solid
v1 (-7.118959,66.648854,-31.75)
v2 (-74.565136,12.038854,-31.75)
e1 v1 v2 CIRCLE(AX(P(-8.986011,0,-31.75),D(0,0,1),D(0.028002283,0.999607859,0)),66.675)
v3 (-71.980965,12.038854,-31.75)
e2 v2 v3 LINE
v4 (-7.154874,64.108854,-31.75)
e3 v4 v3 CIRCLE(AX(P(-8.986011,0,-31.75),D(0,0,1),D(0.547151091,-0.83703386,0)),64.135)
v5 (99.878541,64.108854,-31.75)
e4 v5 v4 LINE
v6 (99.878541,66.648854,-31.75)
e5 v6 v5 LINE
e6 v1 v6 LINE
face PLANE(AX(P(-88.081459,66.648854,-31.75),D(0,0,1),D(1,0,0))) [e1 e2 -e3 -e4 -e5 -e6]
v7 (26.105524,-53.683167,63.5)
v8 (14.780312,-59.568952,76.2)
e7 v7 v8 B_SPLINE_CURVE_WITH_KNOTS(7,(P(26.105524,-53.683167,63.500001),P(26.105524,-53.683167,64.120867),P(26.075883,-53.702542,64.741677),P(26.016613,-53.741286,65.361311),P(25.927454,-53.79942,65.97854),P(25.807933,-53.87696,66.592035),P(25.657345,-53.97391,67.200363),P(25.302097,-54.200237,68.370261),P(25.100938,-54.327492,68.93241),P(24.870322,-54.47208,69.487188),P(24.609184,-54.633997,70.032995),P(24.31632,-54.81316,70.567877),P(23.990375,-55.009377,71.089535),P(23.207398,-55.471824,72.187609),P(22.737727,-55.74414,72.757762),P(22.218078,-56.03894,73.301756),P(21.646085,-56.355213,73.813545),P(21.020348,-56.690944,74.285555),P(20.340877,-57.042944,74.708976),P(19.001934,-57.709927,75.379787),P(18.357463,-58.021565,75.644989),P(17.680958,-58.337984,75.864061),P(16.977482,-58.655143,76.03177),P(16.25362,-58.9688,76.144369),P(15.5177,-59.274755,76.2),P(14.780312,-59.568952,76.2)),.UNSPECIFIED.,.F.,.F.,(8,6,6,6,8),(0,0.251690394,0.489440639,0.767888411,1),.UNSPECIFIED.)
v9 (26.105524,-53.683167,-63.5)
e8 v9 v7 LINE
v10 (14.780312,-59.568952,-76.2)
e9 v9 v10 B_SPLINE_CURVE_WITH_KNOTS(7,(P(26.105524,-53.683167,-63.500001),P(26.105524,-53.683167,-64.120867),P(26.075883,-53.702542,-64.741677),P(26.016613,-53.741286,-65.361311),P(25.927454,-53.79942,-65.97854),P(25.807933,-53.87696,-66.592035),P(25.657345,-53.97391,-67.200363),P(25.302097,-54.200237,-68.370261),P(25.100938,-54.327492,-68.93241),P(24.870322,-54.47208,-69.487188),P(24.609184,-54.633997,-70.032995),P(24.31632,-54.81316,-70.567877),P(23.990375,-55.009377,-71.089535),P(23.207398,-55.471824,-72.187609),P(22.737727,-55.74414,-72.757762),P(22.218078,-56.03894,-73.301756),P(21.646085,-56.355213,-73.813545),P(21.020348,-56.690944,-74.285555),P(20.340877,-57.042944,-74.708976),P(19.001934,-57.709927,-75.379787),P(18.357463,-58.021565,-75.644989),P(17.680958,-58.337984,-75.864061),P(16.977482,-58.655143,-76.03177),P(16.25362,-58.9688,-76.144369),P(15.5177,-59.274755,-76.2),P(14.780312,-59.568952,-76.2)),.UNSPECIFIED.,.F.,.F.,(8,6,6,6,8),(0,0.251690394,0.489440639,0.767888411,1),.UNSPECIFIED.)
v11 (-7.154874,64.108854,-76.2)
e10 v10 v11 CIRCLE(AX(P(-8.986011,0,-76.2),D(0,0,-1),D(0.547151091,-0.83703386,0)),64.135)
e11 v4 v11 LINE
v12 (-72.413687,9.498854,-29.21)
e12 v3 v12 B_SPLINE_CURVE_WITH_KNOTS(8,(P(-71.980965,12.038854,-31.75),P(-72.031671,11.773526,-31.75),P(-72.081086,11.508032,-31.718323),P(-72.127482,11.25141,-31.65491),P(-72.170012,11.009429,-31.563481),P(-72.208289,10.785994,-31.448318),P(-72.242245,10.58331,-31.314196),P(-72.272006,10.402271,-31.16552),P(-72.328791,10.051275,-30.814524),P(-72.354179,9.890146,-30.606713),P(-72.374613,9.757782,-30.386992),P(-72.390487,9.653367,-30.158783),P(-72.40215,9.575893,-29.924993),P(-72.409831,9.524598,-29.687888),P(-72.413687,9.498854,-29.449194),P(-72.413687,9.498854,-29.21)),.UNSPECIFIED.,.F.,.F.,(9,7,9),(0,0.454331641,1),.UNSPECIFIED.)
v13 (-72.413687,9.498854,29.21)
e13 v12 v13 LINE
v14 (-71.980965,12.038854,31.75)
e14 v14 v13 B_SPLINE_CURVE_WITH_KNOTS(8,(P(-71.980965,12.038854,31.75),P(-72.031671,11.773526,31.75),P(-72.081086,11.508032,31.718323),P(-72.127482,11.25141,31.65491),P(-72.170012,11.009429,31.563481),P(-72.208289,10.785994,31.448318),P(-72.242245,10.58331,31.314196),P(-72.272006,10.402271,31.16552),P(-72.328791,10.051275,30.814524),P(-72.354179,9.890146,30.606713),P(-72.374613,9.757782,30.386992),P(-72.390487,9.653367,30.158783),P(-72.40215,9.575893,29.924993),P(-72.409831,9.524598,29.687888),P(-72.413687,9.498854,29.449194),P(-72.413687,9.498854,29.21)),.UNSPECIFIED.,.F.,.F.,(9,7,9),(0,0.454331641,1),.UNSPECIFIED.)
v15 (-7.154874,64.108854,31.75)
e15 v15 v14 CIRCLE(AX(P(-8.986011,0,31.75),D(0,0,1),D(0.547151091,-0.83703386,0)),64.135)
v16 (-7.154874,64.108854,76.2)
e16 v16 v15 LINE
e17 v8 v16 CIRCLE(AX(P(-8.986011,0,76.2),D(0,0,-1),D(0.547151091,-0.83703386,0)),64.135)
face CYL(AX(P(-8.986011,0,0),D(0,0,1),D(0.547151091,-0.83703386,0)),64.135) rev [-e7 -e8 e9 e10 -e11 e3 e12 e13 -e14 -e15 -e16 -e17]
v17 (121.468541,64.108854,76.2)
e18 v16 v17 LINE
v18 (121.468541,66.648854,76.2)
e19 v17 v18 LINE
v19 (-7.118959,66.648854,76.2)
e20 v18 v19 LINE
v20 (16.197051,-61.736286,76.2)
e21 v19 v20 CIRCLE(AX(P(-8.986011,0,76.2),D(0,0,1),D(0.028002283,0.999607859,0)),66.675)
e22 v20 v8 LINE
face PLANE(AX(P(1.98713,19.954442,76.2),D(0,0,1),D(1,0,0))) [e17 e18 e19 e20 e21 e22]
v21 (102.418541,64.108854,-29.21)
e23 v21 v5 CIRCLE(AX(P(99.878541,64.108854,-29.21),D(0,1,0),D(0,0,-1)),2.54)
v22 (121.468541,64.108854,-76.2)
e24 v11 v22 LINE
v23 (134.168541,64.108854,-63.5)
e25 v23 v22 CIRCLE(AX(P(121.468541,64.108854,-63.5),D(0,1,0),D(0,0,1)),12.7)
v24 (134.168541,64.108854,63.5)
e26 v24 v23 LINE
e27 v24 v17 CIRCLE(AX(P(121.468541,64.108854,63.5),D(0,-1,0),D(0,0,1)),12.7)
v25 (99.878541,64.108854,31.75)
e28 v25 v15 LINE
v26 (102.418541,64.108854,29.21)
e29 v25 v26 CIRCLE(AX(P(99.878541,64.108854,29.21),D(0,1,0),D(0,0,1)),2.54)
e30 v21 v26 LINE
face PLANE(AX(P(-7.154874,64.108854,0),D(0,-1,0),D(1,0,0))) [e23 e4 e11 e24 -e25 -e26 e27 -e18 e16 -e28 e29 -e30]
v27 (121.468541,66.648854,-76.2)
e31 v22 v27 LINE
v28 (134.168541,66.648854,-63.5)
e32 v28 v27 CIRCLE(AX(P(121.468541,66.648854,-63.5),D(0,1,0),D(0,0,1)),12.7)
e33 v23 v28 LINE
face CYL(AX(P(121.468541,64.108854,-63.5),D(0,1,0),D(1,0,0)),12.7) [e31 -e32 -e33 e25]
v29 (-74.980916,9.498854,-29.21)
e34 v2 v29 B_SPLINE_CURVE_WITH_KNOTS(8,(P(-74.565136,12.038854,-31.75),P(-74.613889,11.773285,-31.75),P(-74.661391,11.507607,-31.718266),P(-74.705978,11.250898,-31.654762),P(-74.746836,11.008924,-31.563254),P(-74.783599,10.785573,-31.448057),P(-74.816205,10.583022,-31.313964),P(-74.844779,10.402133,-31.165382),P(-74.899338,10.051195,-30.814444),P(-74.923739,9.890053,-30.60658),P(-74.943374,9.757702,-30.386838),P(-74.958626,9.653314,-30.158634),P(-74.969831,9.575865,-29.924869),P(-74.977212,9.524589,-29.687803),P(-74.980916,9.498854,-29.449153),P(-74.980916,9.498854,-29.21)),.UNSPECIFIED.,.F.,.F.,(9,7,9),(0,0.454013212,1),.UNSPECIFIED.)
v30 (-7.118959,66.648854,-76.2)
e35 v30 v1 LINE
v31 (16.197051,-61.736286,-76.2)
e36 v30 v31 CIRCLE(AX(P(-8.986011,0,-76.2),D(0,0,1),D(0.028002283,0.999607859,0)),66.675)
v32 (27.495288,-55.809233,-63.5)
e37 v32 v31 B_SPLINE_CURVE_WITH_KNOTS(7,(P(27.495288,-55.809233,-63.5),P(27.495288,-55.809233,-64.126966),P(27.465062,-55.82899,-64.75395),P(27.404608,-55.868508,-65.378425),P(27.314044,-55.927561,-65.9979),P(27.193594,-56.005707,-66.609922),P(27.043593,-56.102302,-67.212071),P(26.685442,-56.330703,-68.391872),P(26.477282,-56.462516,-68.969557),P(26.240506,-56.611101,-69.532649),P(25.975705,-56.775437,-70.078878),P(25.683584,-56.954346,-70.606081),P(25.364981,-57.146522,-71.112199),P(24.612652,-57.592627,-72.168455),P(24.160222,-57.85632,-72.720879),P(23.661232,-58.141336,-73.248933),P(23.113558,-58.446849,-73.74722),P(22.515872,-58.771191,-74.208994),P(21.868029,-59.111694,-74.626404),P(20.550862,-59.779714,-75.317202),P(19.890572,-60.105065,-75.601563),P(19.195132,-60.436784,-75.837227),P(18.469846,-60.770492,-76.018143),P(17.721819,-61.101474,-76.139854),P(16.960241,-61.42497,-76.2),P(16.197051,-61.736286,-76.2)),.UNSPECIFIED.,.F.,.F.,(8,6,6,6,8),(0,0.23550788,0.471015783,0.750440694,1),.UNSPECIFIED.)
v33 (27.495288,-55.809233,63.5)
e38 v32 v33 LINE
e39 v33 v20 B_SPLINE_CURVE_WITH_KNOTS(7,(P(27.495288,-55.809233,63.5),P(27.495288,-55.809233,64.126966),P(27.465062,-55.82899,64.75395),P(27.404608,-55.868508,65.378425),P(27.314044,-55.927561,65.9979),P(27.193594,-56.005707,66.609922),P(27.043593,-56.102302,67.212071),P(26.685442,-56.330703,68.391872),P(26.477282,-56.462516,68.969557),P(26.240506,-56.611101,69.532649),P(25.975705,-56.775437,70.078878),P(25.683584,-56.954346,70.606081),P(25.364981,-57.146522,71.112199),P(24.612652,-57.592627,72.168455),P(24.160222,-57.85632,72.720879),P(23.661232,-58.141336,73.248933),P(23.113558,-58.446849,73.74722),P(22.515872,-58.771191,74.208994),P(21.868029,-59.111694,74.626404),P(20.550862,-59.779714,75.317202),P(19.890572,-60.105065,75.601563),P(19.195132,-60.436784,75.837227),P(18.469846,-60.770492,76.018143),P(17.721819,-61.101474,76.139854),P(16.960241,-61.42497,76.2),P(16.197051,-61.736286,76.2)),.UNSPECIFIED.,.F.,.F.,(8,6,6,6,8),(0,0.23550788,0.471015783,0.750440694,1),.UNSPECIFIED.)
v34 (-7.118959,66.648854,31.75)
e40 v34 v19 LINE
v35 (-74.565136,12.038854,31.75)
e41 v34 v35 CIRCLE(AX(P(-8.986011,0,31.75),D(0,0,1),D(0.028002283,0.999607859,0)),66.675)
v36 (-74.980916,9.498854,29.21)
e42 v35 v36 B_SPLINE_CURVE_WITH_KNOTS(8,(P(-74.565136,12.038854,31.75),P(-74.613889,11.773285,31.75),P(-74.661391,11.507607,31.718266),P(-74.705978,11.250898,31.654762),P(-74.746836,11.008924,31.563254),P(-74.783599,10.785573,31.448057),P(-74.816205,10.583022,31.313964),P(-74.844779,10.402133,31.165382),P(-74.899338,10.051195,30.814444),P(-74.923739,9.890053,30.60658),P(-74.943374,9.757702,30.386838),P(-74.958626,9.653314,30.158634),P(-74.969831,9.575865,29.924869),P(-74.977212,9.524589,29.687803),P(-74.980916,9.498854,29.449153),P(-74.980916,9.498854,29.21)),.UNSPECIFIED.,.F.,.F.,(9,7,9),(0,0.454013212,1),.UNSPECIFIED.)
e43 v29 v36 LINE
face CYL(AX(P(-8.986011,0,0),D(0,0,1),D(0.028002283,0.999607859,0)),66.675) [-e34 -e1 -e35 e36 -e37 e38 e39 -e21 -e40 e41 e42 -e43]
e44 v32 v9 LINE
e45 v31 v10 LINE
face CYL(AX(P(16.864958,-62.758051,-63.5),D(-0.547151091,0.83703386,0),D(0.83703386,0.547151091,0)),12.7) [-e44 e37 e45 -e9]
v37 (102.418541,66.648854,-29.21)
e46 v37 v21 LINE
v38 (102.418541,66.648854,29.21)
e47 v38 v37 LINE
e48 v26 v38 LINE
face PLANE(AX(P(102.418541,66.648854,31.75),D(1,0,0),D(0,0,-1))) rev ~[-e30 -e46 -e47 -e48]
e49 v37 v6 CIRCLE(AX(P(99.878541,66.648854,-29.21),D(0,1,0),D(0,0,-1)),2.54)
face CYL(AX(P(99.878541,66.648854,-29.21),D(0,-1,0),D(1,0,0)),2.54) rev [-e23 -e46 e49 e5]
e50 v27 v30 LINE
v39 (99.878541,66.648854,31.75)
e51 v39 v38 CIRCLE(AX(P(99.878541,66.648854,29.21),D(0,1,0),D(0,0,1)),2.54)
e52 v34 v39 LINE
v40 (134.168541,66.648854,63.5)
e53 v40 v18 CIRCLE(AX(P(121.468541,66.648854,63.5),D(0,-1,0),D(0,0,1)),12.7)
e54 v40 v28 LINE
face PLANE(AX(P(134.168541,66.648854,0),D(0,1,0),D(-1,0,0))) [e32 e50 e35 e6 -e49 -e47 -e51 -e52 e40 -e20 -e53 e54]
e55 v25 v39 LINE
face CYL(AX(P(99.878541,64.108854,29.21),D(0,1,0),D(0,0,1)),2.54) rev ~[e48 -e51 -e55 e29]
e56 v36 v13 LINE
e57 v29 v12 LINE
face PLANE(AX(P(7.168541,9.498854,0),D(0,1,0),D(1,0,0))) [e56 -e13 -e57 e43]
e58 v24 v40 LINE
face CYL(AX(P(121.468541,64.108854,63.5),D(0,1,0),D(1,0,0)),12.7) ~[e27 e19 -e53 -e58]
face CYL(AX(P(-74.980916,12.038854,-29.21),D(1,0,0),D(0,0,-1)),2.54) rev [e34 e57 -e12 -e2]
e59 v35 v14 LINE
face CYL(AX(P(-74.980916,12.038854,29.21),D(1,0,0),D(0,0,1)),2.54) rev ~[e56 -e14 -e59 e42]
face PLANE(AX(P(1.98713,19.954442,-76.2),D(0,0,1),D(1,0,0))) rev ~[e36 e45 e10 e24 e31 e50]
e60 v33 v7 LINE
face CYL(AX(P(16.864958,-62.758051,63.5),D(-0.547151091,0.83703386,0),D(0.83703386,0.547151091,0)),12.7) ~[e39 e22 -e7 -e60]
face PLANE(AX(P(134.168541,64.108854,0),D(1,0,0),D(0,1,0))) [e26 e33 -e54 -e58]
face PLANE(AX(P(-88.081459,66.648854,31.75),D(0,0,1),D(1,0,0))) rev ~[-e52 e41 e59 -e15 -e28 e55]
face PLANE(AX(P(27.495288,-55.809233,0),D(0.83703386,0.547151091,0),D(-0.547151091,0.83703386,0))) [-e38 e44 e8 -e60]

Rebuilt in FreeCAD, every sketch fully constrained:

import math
import FreeCAD as App
import Part
import Sketcher
from FreeCAD import Vector
Q = App.Units.Quantity


def edges_at(feature, points):
    """Names of the edges that pass closest to the given points."""
    edges = feature.Shape.Edges
    near = lambda p: min(range(len(edges)), key=lambda i: edges[i].distToShape(Part.Vertex(*p))[0])
    return sorted({f"Edge{near(p) + 1}" for p in points})


def add_polygon(sketch, points):
    """Adds a closed chain of lines whose ends are joined by coincident constraints."""
    first, n = sketch.GeometryCount, len(points)
    for a, b in zip(points, points[1:] + points[:1]):
        sketch.addGeometry(Part.LineSegment(App.Vector(*a, 0), App.Vector(*b, 0)), False)
    for i in range(n):
        sketch.addConstraint(Sketcher.Constraint("Coincident", first + i, 2, first + (i + 1) % n, 1))

doc = App.newDocument("Part")
body = doc.addObject("PartDesign::Body", "Body")

sketch1 = body.newObject("Sketcher::SketchObject", "Sketch")
sketch1.AttachmentSupport = (doc.getObject("XY_Plane"), [""])
sketch1.MapMode = "FlatFace"
sketch1.addGeometry([
    Part.LineSegment(Vector(134.168541, 66.648854, 0), Vector(-7.118959, 66.648854, 0)),
    Part.ArcOfCircle(Part.Circle(Vector(-8.986011, 0, 0), Vector(0, 0, 1), 66.675), math.radians(88.395378), math.radians(303.171785)),
    Part.LineSegment(Vector(27.495288, -55.809233, 0), Vector(26.105524, -53.683167, 0)),
    Part.ArcOfCircle(Part.Circle(Vector(-8.986011, 0, 0), Vector(0, 0, 1), 64.135), math.radians(88.363909), math.radians(303.171785)),
    Part.LineSegment(Vector(-7.154874, 64.108854, 0), Vector(134.168541, 64.108854, 0)),
    Part.LineSegment(Vector(134.168541, 64.108854, 0), Vector(134.168541, 66.648854, 0)),
], False)
sketch1.addConstraint([
    Sketcher.Constraint("Coincident", 0, 2, 1, 1),
    Sketcher.Constraint("Coincident", 1, 2, 2, 1),
    Sketcher.Constraint("Coincident", 2, 2, 3, 2),
    Sketcher.Constraint("Coincident", 3, 1, 4, 1),
    Sketcher.Constraint("Coincident", 4, 2, 5, 1),
    Sketcher.Constraint("Coincident", 5, 2, 0, 1),
    Sketcher.Constraint("Horizontal", 0),
    Sketcher.Constraint("Horizontal", 4),
    Sketcher.Constraint("Vertical", 5),
    Sketcher.Constraint("Coincident", 3, 3, 1, 3),
    Sketcher.Constraint("PointOnObject", 1, 3, -1),
    Sketcher.Constraint("DistanceY", 5, 1, 5, 2, Q("0.1 in")),
    Sketcher.Constraint("Radius", 1, Q("2.625 in")),
    Sketcher.Constraint("Radius", 3, Q("2.525 in")),
    Sketcher.Constraint("DistanceX", 0, 2, 0, 1, Q("5.5625 in")),
    Sketcher.Constraint("DistanceX", 1, 3, 1, 2, Q("36.481299 mm")),
    Sketcher.Constraint("DistanceX", 3, 1, 2, 2, Q("33.260398 mm")),
    Sketcher.Constraint("DistanceX", 4, 1, 4, 2, Q("141.323415 mm")),
    Sketcher.Constraint("DistanceX", 1, 3, -1, 1, Q("8.986011 mm")),
])
pad1 = body.newObject("PartDesign::Pad", "Pad")
pad1.Profile = sketch1
pad1.Length = Q("6 in")
pad1.Midplane = True
doc.recompute()

fillet = body.newObject("PartDesign::Fillet", "Fillet")
fillet.Base = (pad1, edges_at(pad1, [
    (134.169, 65.379, 76.2),
    (134.169, 65.379, -76.2),
    (26.8, -54.746, -76.2),
    (26.8, -54.746, 76.2),
]))
fillet.Radius = Q("0.5 in")

sketch2 = body.newObject("Sketcher::SketchObject", "Sketch001")
sketch2.AttachmentSupport = (doc.getObject("XZ_Plane"), [""])
sketch2.MapMode = "FlatFace"
sketch2.AttachmentOffset = App.Placement(Vector(0, 0, -66.648854), App.Rotation())
add_polygon(sketch2, [(-88.081459, -31.75), (-88.081459, 31.75), (102.418541, 31.75), (102.418541, -31.75)])
sketch2.addConstraint([
    Sketcher.Constraint("Vertical", 0),
    Sketcher.Constraint("Horizontal", 1),
    Sketcher.Constraint("Vertical", 2),
    Sketcher.Constraint("Horizontal", 3),
    Sketcher.Constraint("DistanceX", 1, 1, 1, 2, Q("7.5 in")),
    Sketcher.Constraint("DistanceY", 0, 1, 0, 2, Q("2.5 in")),
    Sketcher.Constraint("DistanceY", -1, 1, 0, 2, Q("1.25 in")),
    Sketcher.Constraint("DistanceX", 0, 2, -1, 1, Q("88.081459 mm")),
])
pocket1 = body.newObject("PartDesign::Pocket", "Pocket")
pocket1.Profile = sketch2
pocket1.Length = Q("4.5 in")
pocket1.Midplane = True
doc.recompute()

fillet2 = body.newObject("PartDesign::Fillet", "Fillet001")
fillet2.Base = (pocket1, edges_at(pocket1, [
    (102.419, 65.379, -31.75),
    (102.419, 65.379, 31.75),
    (-73.697, 9.499, 31.75),
    (-73.697, 9.499, -31.75),
]))
fillet2.Radius = Q("0.1 in")

doc.recompute()
